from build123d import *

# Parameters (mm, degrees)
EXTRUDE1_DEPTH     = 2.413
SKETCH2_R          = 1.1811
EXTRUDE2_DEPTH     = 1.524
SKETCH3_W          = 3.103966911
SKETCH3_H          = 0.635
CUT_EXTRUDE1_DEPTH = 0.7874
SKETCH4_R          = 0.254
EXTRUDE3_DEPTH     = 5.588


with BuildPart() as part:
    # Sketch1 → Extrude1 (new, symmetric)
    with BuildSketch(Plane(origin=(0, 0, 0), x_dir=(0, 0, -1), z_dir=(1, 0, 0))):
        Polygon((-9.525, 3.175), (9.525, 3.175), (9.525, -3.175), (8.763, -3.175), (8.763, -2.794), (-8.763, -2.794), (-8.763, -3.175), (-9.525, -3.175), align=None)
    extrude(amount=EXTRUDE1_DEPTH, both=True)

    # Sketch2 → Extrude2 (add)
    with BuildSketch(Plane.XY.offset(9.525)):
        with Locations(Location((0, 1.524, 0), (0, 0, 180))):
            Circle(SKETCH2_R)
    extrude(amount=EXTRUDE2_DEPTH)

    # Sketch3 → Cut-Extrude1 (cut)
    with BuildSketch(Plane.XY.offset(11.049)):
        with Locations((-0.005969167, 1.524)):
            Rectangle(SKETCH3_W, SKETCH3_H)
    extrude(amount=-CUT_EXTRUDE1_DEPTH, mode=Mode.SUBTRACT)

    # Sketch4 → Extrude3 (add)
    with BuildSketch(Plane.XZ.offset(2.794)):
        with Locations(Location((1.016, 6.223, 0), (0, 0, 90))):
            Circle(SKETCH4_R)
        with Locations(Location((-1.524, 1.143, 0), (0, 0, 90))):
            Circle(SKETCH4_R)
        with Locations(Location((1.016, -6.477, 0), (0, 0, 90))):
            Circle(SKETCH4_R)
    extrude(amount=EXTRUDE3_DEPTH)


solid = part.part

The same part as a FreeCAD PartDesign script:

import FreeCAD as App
import Part
import Sketcher

V = App.Vector
Q = App.Units.Quantity


def add_polygon(sketch, points):
    """Adds a closed chain of lines whose ends are joined by coincident constraints."""
    first, n = sketch.GeometryCount, len(points)
    for a, b in zip(points, points[1:] + points[:1]):
        sketch.addGeometry(Part.LineSegment(App.Vector(*a, 0), App.Vector(*b, 0)), False)
    for i in range(n):
        sketch.addConstraint(Sketcher.Constraint("Coincident", first + i, 2, first + (i + 1) % n, 1))

doc = App.newDocument("Part")
body = doc.addObject("PartDesign::Body", "Body")

# Sketch on YZ plane
sketch1 = body.newObject("Sketcher::SketchObject", "Sketch")
sketch1.AttachmentSupport = (doc.getObject("YZ_Plane"), [""])
sketch1.MapMode = "FlatFace"
add_polygon(sketch1, [(3.17, -9.53), (3.17, 9.53), (-3.17, 9.53), (-3.17, 8.76), (-2.79, 8.76), (-2.79, -8.76), (-3.17, -8.76), (-3.17, -9.53)])  # lines 0-7
sketch1.addConstraint(Sketcher.Constraint("Vertical", 0))
sketch1.addConstraint(Sketcher.Constraint("Horizontal", 1))
sketch1.addConstraint(Sketcher.Constraint("Vertical", 2))
sketch1.addConstraint(Sketcher.Constraint("Horizontal", 3))
sketch1.addConstraint(Sketcher.Constraint("Vertical", 4))
sketch1.addConstraint(Sketcher.Constraint("Horizontal", 5))
sketch1.addConstraint(Sketcher.Constraint("Vertical", 6))
sketch1.addConstraint(Sketcher.Constraint("Horizontal", 7))
sketch1.addConstraint(Sketcher.Constraint("Symmetric", 0, 2, 6, 2, -1, 1))
sketch1.addConstraint(Sketcher.Constraint("Symmetric", 2, 2, 5, 2, -1))
sketch1.addConstraint(Sketcher.Constraint("DistanceX", 1, 2, 1, 1, Q("0.25 in")))
sketch1.addConstraint(Sketcher.Constraint("DistanceY", 0, 1, 0, 2, Q("0.75 in")))
sketch1.addConstraint(Sketcher.Constraint("DistanceY", 2, 2, 2, 1, Q("0.03 in")))
sketch1.addConstraint(Sketcher.Constraint("DistanceX", 3, 1, 3, 2, Q("0.015 in")))
pad1 = body.newObject("PartDesign::Pad", "Pad")
pad1.Profile = sketch1
pad1.Length = Q("0.19 in")
pad1.Midplane = True

# Sketch on XY plane
sketch2 = body.newObject("Sketcher::SketchObject", "Sketch001")
sketch2.AttachmentSupport = (doc.getObject("XY_Plane"), [""])
sketch2.MapMode = "FlatFace"
sketch2.AttachmentOffset = App.Placement(V(0, 0, 0.375 * 25.4), App.Rotation())
sketch2.addGeometry(Part.Circle(V(0, 1.5, 0), V(0, 0, 1), 1.2), False)
sketch2.addConstraint(Sketcher.Constraint("PointOnObject", 0, 3, -2))
sketch2.addConstraint(Sketcher.Constraint("Diameter", 0, Q("0.093 in")))
sketch2.addConstraint(Sketcher.Constraint("DistanceY", -1, 1, 0, 3, Q("0.06 in")))
pad2 = body.newObject("PartDesign::Pad", "Pad001")
pad2.Profile = sketch2
pad2.Length = Q("0.06 in")

# Sketch on XY plane
sketch3 = body.newObject("Sketcher::SketchObject", "Sketch002")
sketch3.AttachmentSupport = (doc.getObject("XY_Plane"), [""])
sketch3.MapMode = "FlatFace"
sketch3.AttachmentOffset = App.Placement(V(0, 0, 0.435 * 25.4), App.Rotation())
add_polygon(sketch3, [(-1.6, 1.8), (-1.6, 1.2), (1.5, 1.2), (1.5, 1.8)])  # lines 0-3
sketch3.addConstraint(Sketcher.Constraint("Vertical", 0))
sketch3.addConstraint(Sketcher.Constraint("Horizontal", 1))
sketch3.addConstraint(Sketcher.Constraint("Vertical", 2))
sketch3.addConstraint(Sketcher.Constraint("Horizontal", 3))
sketch3.addConstraint(Sketcher.Constraint("DistanceY", 0, 2, 0, 1, Q("0.025 in")))
sketch3.addConstraint(Sketcher.Constraint("DistanceY", -1, 1, 0, 2, Q("0.0475 in")))
sketch3.addConstraint(Sketcher.Constraint("DistanceX", 1, 1, 1, 2, Q("3.103967 mm")))
sketch3.addConstraint(Sketcher.Constraint("DistanceX", 0, 2, -1, 1, Q("1.557953 mm")))
pocket1 = body.newObject("PartDesign::Pocket", "Pocket")
pocket1.Profile = sketch3
pocket1.Length = Q("0.031 in")

# Sketch on XZ plane
sketch4 = body.newObject("Sketcher::SketchObject", "Sketch003")
sketch4.AttachmentSupport = (doc.getObject("XZ_Plane"), [""])
sketch4.MapMode = "FlatFace"
sketch4.AttachmentOffset = App.Placement(V(0, 0, 0.11 * 25.4), App.Rotation())
sketch4.addGeometry(Part.Circle(V(1.02, 6.22, 0), V(0, 0, 1), 0.25), False)
sketch4.addGeometry(Part.Circle(V(-1.52, 1.14, 0), V(0, 0, 1), 0.25), False)
sketch4.addGeometry(Part.Circle(V(1.02, -6.48, 0), V(0, 0, 1), 0.25), False)
sketch4.addConstraint(Sketcher.Constraint("Equal", 0, 1))
sketch4.addConstraint(Sketcher.Constraint("Equal", 1, 2))
sketch4.addConstraint(Sketcher.Constraint("Vertical", 0, 3, 2, 3))
sketch4.addConstraint(Sketcher.Constraint("Diameter", 0, Q("0.02 in")))
sketch4.addConstraint(Sketcher.Constraint("DistanceX", 1, 3, 0, 3, Q("0.1 in")))
sketch4.addConstraint(Sketcher.Constraint("DistanceY", 1, 3, 0, 3, Q("0.2 in")))
sketch4.addConstraint(Sketcher.Constraint("DistanceY", 2, 3, 1, 3, Q("0.3 in")))
sketch4.addConstraint(Sketcher.Constraint("DistanceX", -1, 1, 0, 3, Q("0.04 in")))
sketch4.addConstraint(Sketcher.Constraint("DistanceY", -1, 1, 0, 3, Q("0.245 in")))
pad3 = body.newObject("PartDesign::Pad", "Pad002")
pad3.Profile = sketch4
pad3.Length = Q("0.22 in")

doc.recompute()
